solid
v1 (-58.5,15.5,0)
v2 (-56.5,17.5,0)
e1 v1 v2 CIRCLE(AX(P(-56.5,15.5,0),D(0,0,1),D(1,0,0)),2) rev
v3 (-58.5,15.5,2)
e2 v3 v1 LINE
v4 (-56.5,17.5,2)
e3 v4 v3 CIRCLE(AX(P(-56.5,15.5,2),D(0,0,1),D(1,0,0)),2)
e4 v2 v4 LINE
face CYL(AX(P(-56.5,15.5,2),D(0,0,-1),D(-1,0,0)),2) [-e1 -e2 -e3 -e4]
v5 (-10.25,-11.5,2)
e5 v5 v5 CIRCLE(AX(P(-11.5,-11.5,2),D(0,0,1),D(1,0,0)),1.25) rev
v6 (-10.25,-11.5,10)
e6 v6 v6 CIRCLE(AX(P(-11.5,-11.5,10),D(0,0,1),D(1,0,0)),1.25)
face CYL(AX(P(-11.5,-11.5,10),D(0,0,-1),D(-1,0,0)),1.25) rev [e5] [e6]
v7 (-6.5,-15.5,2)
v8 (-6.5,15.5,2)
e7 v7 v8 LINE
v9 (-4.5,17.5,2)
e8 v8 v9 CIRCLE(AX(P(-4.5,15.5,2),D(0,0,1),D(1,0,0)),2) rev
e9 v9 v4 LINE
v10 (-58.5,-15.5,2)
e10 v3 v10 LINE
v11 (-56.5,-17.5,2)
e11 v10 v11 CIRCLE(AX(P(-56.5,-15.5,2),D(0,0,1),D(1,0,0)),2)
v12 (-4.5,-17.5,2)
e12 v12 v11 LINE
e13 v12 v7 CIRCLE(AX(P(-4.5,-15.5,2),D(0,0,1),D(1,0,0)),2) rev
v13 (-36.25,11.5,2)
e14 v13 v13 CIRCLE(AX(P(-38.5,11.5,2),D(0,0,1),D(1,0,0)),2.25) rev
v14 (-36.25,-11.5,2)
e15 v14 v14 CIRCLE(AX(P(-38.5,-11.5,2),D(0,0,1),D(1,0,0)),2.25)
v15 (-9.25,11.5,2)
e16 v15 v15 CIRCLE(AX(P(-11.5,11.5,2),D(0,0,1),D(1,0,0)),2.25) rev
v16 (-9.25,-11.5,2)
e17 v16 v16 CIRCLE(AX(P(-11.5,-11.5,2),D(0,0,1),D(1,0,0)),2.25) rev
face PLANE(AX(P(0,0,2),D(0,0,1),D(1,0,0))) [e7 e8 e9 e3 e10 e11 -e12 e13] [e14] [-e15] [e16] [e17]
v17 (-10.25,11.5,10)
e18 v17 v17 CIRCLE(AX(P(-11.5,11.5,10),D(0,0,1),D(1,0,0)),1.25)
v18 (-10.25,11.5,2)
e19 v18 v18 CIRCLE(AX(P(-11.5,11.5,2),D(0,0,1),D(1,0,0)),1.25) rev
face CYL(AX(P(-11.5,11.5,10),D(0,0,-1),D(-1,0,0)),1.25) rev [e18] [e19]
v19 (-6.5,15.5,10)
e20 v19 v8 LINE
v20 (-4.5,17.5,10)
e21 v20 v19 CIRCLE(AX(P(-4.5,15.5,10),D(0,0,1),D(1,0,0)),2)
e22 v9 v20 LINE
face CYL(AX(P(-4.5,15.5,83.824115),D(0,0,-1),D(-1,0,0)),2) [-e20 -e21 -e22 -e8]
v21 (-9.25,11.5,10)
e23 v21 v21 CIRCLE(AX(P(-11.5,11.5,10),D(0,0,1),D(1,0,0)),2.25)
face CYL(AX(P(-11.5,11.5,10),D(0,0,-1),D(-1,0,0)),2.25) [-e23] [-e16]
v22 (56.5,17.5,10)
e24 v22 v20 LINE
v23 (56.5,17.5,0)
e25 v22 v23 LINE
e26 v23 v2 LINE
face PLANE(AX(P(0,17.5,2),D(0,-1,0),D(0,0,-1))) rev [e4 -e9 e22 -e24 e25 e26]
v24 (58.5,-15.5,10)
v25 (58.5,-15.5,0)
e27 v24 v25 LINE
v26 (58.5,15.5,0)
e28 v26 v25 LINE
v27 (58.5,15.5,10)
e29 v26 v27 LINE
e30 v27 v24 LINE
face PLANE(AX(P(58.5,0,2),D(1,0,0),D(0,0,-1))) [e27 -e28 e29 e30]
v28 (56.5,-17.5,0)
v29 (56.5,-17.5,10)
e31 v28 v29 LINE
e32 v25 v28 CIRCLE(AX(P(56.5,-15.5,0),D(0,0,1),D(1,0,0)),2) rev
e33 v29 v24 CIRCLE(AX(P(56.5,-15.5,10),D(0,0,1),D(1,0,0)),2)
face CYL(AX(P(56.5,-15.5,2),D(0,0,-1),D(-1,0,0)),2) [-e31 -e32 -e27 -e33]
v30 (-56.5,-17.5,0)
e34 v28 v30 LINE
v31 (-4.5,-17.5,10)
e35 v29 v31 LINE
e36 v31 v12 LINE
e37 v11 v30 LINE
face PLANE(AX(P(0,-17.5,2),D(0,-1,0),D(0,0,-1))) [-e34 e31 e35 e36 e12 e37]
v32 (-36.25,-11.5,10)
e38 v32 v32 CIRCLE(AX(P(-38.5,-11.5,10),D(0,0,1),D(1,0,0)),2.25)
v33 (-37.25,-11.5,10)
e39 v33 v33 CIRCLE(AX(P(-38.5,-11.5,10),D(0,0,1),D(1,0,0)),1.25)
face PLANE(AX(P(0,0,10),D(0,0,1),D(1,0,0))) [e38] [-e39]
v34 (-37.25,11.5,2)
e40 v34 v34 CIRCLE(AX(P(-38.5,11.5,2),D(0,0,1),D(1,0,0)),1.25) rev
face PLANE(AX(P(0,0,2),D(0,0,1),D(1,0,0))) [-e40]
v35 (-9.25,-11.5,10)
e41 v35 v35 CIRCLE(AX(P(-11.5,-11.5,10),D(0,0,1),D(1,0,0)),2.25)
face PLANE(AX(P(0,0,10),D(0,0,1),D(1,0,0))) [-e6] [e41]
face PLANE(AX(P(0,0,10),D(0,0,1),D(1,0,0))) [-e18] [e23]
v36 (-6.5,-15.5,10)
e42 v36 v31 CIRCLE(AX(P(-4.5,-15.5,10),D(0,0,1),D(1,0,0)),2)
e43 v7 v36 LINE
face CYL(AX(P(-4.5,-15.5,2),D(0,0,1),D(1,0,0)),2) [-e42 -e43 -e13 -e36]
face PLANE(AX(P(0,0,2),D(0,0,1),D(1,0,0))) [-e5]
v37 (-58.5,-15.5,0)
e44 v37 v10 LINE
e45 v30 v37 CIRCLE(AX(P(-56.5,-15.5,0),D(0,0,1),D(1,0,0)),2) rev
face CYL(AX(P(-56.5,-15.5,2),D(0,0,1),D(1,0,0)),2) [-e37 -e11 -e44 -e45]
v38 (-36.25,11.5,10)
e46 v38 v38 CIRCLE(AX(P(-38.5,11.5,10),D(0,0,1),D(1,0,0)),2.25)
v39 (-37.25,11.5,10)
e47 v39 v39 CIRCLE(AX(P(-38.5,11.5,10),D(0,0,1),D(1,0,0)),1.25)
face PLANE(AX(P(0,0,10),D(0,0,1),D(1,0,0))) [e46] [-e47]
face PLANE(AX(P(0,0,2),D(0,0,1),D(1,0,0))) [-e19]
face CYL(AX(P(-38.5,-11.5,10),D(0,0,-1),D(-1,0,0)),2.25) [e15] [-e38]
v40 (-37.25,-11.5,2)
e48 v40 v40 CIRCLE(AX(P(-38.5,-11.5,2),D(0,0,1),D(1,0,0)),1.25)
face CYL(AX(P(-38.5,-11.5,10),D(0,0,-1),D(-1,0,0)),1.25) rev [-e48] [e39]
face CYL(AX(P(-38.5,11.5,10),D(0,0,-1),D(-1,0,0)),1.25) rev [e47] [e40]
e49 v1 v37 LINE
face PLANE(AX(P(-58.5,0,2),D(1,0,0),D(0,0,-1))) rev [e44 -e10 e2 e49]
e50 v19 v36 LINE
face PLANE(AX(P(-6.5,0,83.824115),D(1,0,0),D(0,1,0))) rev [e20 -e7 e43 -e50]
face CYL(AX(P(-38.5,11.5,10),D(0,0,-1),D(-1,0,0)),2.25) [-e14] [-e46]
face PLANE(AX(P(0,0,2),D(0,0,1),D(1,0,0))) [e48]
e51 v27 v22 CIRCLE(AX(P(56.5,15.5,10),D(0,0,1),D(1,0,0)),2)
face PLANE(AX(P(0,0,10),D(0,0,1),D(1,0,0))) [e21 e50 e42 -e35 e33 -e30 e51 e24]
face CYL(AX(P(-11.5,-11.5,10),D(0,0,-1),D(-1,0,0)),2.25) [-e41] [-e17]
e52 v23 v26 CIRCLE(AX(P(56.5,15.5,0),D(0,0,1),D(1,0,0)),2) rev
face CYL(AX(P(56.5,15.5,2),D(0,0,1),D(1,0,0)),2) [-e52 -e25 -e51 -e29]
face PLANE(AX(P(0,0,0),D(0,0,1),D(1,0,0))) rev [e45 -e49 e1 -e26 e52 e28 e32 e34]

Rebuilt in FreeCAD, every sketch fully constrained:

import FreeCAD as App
import Part
import Sketcher
from FreeCAD import Vector
Q = App.Units.Quantity


def edges_at(feature, points):
    """Names of the edges that pass closest to the given points."""
    edges = feature.Shape.Edges
    near = lambda p: min(range(len(edges)), key=lambda i: edges[i].distToShape(Part.Vertex(*p))[0])
    return sorted({f"Edge{near(p) + 1}" for p in points})

doc = App.newDocument("Part")
params = doc.addObject("Spreadsheet::Sheet", "Params")
for row, (alias, value) in enumerate([
    ("sketch1_diameter", "4.5 mm"),
    ("sketch1_diameter2", "2.5 mm"),
    ("pad1_length", "10 mm"),
    ("sketch2_diameter", "4.5 mm"),
    ("sketch2_diameter2", "2.5 mm"),
    ("pad2_length", "10 mm"),
    ("sketch3_diameter", "4.5 mm"),
    ("sketch3_diameter2", "2.5 mm"),
    ("pad3_length", "10 mm"),
    ("sketch4_diameter", "4.5 mm"),
    ("sketch4_diameter2", "2.5 mm"),
    ("pad4_length", "10 mm"),
    ("sketch5_width", "117 mm"),
    ("sketch5_height", "35 mm"),
    ("pad5_length", "2 mm"),
    ("sketch6_width", "65 mm"),
    ("sketch6_height", "35 mm"),
    ("pad6_length", "10 mm"),
    ("fillet_radius", "2 mm"),
], start=1):
    params.set(f"A{row}", alias)
    params.set(f"B{row}", "=" + value)
    params.setAlias(f"B{row}", alias)

body = doc.addObject("PartDesign::Body", "Body")

sketch1 = body.newObject("Sketcher::SketchObject", "Sketch")
sketch1.AttachmentSupport = (doc.getObject("XY_Plane"), [""])
sketch1.MapMode = "FlatFace"
sketch1.addGeometry(Part.Circle(Vector(-38.5, -11.5, 0), Vector(0, 0, 1), 2.2), False)
sketch1.addGeometry(Part.Circle(Vector(-38.5, -11.5, 0), Vector(0, 0, 1), 1.2), False)
sketch1.addConstraint(Sketcher.Constraint("Coincident", 1, 3, 0, 3))
sketch1.addConstraint(Sketcher.Constraint("Diameter", 0, Q("4.5 mm")))
sketch1.addConstraint(Sketcher.Constraint("Diameter", 1, Q("2.5 mm")))
sketch1.addConstraint(Sketcher.Constraint("DistanceX", 0, 3, -1, 1, Q("38.5 mm")))
sketch1.addConstraint(Sketcher.Constraint("DistanceY", 0, 3, -1, 1, Q("11.5 mm")))
sketch1.setExpression("Constraints[1]", "Params.sketch1_diameter")
sketch1.setExpression("Constraints[2]", "Params.sketch1_diameter2")
pad1 = body.newObject("PartDesign::Pad", "Pad")
pad1.Profile = sketch1
pad1.setExpression("Length", "Params.pad1_length")
body2 = doc.addObject("PartDesign::Body", "Body001")

sketch2 = body2.newObject("Sketcher::SketchObject", "Sketch001")
sketch2.AttachmentSupport = (doc.getObject("XY_Plane001"), [""])
sketch2.MapMode = "FlatFace"
sketch2.addGeometry(Part.Circle(Vector(-11.5, -11.5, 0), Vector(0, 0, 1), 2.2), False)
sketch2.addGeometry(Part.Circle(Vector(-11.5, -11.5, 0), Vector(0, 0, 1), 1.2), False)
sketch2.addConstraint(Sketcher.Constraint("Coincident", 1, 3, 0, 3))
sketch2.addConstraint(Sketcher.Constraint("Diameter", 0, Q("4.5 mm")))
sketch2.addConstraint(Sketcher.Constraint("Diameter", 1, Q("2.5 mm")))
sketch2.addConstraint(Sketcher.Constraint("DistanceX", 0, 3, -1, 1, Q("11.5 mm")))
sketch2.addConstraint(Sketcher.Constraint("DistanceY", 0, 3, -1, 1, Q("11.5 mm")))
sketch2.setExpression("Constraints[1]", "Params.sketch2_diameter")
sketch2.setExpression("Constraints[2]", "Params.sketch2_diameter2")
pad2 = body2.newObject("PartDesign::Pad", "Pad001")
pad2.Profile = sketch2
pad2.setExpression("Length", "Params.pad2_length")
body3 = doc.addObject("PartDesign::Body", "Body002")

sketch3 = body3.newObject("Sketcher::SketchObject", "Sketch002")
sketch3.AttachmentSupport = (doc.getObject("XY_Plane002"), [""])
sketch3.MapMode = "FlatFace"
sketch3.addGeometry(Part.Circle(Vector(-11.5, 11.5, 0), Vector(0, 0, 1), 2.2), False)
sketch3.addGeometry(Part.Circle(Vector(-11.5, 11.5, 0), Vector(0, 0, 1), 1.2), False)
sketch3.addConstraint(Sketcher.Constraint("Coincident", 1, 3, 0, 3))
sketch3.addConstraint(Sketcher.Constraint("Diameter", 0, Q("4.5 mm")))
sketch3.addConstraint(Sketcher.Constraint("Diameter", 1, Q("2.5 mm")))
sketch3.addConstraint(Sketcher.Constraint("DistanceX", 0, 3, -1, 1, Q("11.5 mm")))
sketch3.addConstraint(Sketcher.Constraint("DistanceY", -1, 1, 0, 3, Q("11.5 mm")))
sketch3.setExpression("Constraints[1]", "Params.sketch3_diameter")
sketch3.setExpression("Constraints[2]", "Params.sketch3_diameter2")
pad3 = body3.newObject("PartDesign::Pad", "Pad002")
pad3.Profile = sketch3
pad3.setExpression("Length", "Params.pad3_length")
body4 = doc.addObject("PartDesign::Body", "Body003")

sketch4 = body4.newObject("Sketcher::SketchObject", "Sketch003")
sketch4.AttachmentSupport = (doc.getObject("XY_Plane003"), [""])
sketch4.MapMode = "FlatFace"
sketch4.addGeometry(Part.Circle(Vector(-38.5, 11.5, 0), Vector(0, 0, 1), 2.2), False)
sketch4.addGeometry(Part.Circle(Vector(-38.5, 11.5, 0), Vector(0, 0, 1), 1.2), False)
sketch4.addConstraint(Sketcher.Constraint("Coincident", 1, 3, 0, 3))
sketch4.addConstraint(Sketcher.Constraint("Diameter", 0, Q("4.5 mm")))
sketch4.addConstraint(Sketcher.Constraint("Diameter", 1, Q("2.5 mm")))
sketch4.addConstraint(Sketcher.Constraint("DistanceX", 0, 3, -1, 1, Q("38.5 mm")))
sketch4.addConstraint(Sketcher.Constraint("DistanceY", -1, 1, 0, 3, Q("11.5 mm")))
sketch4.setExpression("Constraints[1]", "Params.sketch4_diameter")
sketch4.setExpression("Constraints[2]", "Params.sketch4_diameter2")
pad4 = body4.newObject("PartDesign::Pad", "Pad003")
pad4.Profile = sketch4
pad4.setExpression("Length", "Params.pad4_length")
body.AllowCompound = True
doc.recompute()

boolean = body.newObject("PartDesign::Boolean", "Boolean")
boolean.Type = "Fuse"
boolean.addObjects([body2])
doc.recompute()

boolean2 = body.newObject("PartDesign::Boolean", "Boolean001")
boolean2.Type = "Fuse"
boolean2.addObjects([body3])
doc.recompute()

boolean3 = body.newObject("PartDesign::Boolean", "Boolean002")
boolean3.Type = "Fuse"
boolean3.addObjects([body4])

sketch5 = body.newObject("Sketcher::SketchObject", "Sketch004")
sketch5.AttachmentSupport = (doc.getObject("XY_Plane"), [""])
sketch5.MapMode = "FlatFace"
sketch5.addGeometry(Part.LineSegment(Vector(-58, 18, 0), Vector(-58, -18, 0)), False)
sketch5.addGeometry(Part.LineSegment(Vector(-58, -18, 0), Vector(58, -18, 0)), False)
sketch5.addGeometry(Part.LineSegment(Vector(58, -18, 0), Vector(58, 18, 0)), False)
sketch5.addGeometry(Part.LineSegment(Vector(58, 18, 0), Vector(-58, 18, 0)), False)
sketch5.addConstraint(Sketcher.Constraint("Coincident", 0, 2, 1, 1))
sketch5.addConstraint(Sketcher.Constraint("Coincident", 1, 2, 2, 1))
sketch5.addConstraint(Sketcher.Constraint("Coincident", 2, 2, 3, 1))
sketch5.addConstraint(Sketcher.Constraint("Coincident", 3, 2, 0, 1))
sketch5.addConstraint(Sketcher.Constraint("Vertical", 0))
sketch5.addConstraint(Sketcher.Constraint("Horizontal", 1))
sketch5.addConstraint(Sketcher.Constraint("Vertical", 2))
sketch5.addConstraint(Sketcher.Constraint("Horizontal", 3))
sketch5.addConstraint(Sketcher.Constraint("Symmetric", 0, 2, 2, 2, -1, 1))
sketch5.addConstraint(Sketcher.Constraint("DistanceX", 1, 1, 1, 2, Q("117 mm")))
sketch5.addConstraint(Sketcher.Constraint("DistanceY", 0, 2, 0, 1, Q("35 mm")))
sketch5.setExpression("Constraints[9]", "Params.sketch5_width")
sketch5.setExpression("Constraints[10]", "Params.sketch5_height")
pad5 = body.newObject("PartDesign::Pad", "Pad004")
pad5.Profile = sketch5
pad5.setExpression("Length", "Params.pad5_length")

sketch6 = body.newObject("Sketcher::SketchObject", "Sketch005")
sketch6.AttachmentSupport = (doc.getObject("XY_Plane"), [""])
sketch6.MapMode = "FlatFace"
sketch6.addGeometry(Part.LineSegment(Vector(-6, 18, 0), Vector(-6, -18, 0)), False)
sketch6.addGeometry(Part.LineSegment(Vector(-6, -18, 0), Vector(58, -18, 0)), False)
sketch6.addGeometry(Part.LineSegment(Vector(58, -18, 0), Vector(58, 18, 0)), False)
sketch6.addGeometry(Part.LineSegment(Vector(58, 18, 0), Vector(-6, 18, 0)), False)
sketch6.addConstraint(Sketcher.Constraint("Coincident", 0, 2, 1, 1))
sketch6.addConstraint(Sketcher.Constraint("Coincident", 1, 2, 2, 1))
sketch6.addConstraint(Sketcher.Constraint("Coincident", 2, 2, 3, 1))
sketch6.addConstraint(Sketcher.Constraint("Coincident", 3, 2, 0, 1))
sketch6.addConstraint(Sketcher.Constraint("Vertical", 0))
sketch6.addConstraint(Sketcher.Constraint("Horizontal", 1))
sketch6.addConstraint(Sketcher.Constraint("Vertical", 2))
sketch6.addConstraint(Sketcher.Constraint("Horizontal", 3))
sketch6.addConstraint(Sketcher.Constraint("DistanceX", 1, 1, 1, 2, Q("65 mm")))
sketch6.addConstraint(Sketcher.Constraint("DistanceY", 0, 2, 0, 1, Q("35 mm")))
sketch6.addConstraint(Sketcher.Constraint("DistanceX", 0, 2, -1, 1, Q("6.5 mm")))
sketch6.addConstraint(Sketcher.Constraint("DistanceY", 0, 2, -1, 1, Q("17.5 mm")))
sketch6.setExpression("Constraints[8]", "Params.sketch6_width")
sketch6.setExpression("Constraints[9]", "Params.sketch6_height")
pad6 = body.newObject("PartDesign::Pad", "Pad005")
pad6.Profile = sketch6
pad6.setExpression("Length", "Params.pad6_length")
doc.recompute()

fillet = body.newObject("PartDesign::Fillet", "Fillet")
fillet.Base = (pad6, edges_at(pad6, [
    (-58.5, 17.5, 1),
    (58.5, 17.5, 5),
    (58.5, -17.5, 5),
    (-58.5, -17.5, 1),
    (-6.5, -17.5, 6),
    (-6.5, 17.5, 6),
]))
fillet.setExpression("Radius", "Params.fillet_radius")

doc.recompute()
